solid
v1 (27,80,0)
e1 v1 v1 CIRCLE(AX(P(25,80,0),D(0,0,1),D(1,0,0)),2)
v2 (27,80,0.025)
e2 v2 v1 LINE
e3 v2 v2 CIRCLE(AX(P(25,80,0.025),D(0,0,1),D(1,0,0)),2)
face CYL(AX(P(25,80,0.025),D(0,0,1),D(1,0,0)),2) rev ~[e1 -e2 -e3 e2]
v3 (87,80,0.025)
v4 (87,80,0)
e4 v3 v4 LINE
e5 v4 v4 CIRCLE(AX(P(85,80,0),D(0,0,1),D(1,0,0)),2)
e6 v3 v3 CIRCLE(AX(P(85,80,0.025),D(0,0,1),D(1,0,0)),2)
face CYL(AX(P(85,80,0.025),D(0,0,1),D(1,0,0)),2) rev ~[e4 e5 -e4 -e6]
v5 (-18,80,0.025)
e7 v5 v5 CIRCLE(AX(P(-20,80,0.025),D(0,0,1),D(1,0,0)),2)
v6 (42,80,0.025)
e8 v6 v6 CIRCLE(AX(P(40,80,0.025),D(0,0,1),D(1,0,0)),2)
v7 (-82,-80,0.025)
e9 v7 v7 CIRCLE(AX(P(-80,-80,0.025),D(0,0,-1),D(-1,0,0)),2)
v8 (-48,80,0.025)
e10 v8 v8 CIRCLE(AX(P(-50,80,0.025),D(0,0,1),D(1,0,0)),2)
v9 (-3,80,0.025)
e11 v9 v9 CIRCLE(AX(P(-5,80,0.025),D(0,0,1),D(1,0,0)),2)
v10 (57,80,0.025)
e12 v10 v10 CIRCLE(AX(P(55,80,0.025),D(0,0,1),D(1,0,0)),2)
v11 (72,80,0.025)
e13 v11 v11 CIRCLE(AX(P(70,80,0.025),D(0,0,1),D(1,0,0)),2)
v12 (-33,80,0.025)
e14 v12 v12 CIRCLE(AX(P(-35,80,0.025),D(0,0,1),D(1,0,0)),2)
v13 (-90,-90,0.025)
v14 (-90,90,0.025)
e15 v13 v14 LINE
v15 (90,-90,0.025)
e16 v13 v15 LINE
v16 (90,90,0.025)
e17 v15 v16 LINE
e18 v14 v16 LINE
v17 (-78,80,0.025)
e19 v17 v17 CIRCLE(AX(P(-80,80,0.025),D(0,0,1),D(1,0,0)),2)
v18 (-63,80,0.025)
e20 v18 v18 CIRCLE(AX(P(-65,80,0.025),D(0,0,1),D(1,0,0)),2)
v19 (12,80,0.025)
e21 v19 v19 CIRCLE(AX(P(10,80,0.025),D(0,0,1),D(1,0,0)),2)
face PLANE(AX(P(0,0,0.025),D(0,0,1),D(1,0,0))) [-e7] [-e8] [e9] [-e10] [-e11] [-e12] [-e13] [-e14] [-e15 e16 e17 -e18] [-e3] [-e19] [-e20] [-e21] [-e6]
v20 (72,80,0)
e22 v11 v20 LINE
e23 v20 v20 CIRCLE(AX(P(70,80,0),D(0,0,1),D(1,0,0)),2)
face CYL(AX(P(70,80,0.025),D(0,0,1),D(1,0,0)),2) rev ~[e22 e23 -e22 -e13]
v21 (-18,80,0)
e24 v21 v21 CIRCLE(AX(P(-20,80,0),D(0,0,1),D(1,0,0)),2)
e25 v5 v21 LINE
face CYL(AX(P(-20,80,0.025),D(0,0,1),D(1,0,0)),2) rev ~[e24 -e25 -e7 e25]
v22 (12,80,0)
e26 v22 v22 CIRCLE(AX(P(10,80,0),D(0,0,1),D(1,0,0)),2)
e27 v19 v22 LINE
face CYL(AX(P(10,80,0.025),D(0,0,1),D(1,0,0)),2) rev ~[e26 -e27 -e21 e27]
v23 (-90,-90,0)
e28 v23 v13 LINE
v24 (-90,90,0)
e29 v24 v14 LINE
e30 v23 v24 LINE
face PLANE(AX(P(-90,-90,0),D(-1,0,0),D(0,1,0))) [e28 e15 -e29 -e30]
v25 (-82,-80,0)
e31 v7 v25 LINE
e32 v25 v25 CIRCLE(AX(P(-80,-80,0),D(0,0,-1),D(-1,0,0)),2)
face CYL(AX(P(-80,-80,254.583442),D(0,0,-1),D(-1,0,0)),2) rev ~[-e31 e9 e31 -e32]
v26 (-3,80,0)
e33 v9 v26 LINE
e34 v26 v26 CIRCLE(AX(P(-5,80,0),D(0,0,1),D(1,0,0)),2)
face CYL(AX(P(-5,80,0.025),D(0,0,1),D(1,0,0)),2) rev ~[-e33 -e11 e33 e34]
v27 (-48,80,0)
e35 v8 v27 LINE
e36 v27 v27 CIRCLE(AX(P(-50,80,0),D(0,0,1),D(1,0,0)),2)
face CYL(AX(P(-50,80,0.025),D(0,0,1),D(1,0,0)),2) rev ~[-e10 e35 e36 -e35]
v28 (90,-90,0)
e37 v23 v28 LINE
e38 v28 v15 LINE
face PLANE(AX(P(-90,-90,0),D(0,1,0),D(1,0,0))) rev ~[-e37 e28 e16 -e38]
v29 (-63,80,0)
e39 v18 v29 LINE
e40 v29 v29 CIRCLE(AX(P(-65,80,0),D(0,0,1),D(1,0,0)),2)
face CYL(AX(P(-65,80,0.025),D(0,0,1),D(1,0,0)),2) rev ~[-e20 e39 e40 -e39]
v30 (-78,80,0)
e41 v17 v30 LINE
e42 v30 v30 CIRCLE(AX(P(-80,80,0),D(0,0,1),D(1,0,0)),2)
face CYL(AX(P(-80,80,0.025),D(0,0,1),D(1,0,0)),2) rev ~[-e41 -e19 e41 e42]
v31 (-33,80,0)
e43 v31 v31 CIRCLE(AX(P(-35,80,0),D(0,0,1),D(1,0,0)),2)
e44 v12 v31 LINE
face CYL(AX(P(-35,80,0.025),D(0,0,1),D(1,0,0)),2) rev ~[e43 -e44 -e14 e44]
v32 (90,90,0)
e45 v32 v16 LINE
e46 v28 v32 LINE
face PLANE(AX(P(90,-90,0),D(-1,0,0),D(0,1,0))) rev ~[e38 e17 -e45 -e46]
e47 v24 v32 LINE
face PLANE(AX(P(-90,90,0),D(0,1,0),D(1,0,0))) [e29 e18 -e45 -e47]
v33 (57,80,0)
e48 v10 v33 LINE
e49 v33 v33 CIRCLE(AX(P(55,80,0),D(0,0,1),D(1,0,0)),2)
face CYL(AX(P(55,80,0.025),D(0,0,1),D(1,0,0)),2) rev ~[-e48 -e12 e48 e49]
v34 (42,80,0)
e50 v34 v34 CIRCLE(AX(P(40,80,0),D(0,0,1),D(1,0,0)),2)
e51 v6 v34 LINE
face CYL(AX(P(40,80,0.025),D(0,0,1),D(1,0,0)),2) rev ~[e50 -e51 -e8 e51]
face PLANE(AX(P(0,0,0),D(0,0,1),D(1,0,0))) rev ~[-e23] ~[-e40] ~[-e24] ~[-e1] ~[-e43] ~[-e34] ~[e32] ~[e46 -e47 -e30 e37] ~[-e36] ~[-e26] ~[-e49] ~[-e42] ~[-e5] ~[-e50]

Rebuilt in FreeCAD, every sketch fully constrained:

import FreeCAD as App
import Part
import Sketcher
from FreeCAD import Vector


def add_polygon(sketch, points):
    """Adds a closed chain of lines whose ends are joined by coincident constraints."""
    first, n = sketch.GeometryCount, len(points)
    for a, b in zip(points, points[1:] + points[:1]):
        sketch.addGeometry(Part.LineSegment(App.Vector(*a, 0), App.Vector(*b, 0)), False)
    for i in range(n):
        sketch.addConstraint(Sketcher.Constraint("Coincident", first + i, 2, first + (i + 1) % n, 1))

doc = App.newDocument("Part")
body = doc.addObject("PartDesign::Body", "Body")

# Sketch on XY plane
sketch1 = body.newObject("Sketcher::SketchObject", "Sketch")
sketch1.AttachmentSupport = (doc.getObject("XY_Plane"), [""])
sketch1.MapMode = "FlatFace"
add_polygon(sketch1, [(-90, 90), (-90, -90), (90, -90), (90, 90)])  # lines 0-3
sketch1.addConstraint(Sketcher.Constraint("Vertical", 0))
sketch1.addConstraint(Sketcher.Constraint("Horizontal", 1))
sketch1.addConstraint(Sketcher.Constraint("Vertical", 2))
sketch1.addConstraint(Sketcher.Constraint("Horizontal", 3))
sketch1.addConstraint(Sketcher.Constraint("Symmetric", 0, 2, 2, 2, -1, 1))
sketch1.addConstraint(Sketcher.Constraint("Equal", 3, 0))
sketch1.addConstraint(Sketcher.Constraint("DistanceX", 1, 1, 1, 2, 180.0))
pad1 = body.newObject("PartDesign::Pad", "Pad")
pad1.Profile = sketch1
pad1.Length = 0.025

# Sketch on XY plane
sketch2 = body.newObject("Sketcher::SketchObject", "Sketch001")
sketch2.AttachmentSupport = (doc.getObject("XY_Plane"), [""])
sketch2.MapMode = "FlatFace"
sketch2.AttachmentOffset = App.Placement(Vector(0, 0, 0.025), App.Rotation())
sketch2.addGeometry(Part.Circle(Vector(-80, -80, 0), Vector(0, 0, 1), 2), False)
sketch2.addConstraint(Sketcher.Constraint("Diameter", 0, 4.0))
sketch2.addConstraint(Sketcher.Constraint("DistanceX", 0, 3, -1, 1, 80.0))
sketch2.addConstraint(Sketcher.Constraint("DistanceY", 0, 3, -1, 1, 80.0))
doc.recompute()
hole = body.newObject("PartDesign::Hole", "Hole")
hole.Profile = sketch2
hole.ThreadType = "None"
hole.Diameter = 4
hole.DepthType = "ThroughAll"

# Sketch on XY plane
sketch3 = body.newObject("Sketcher::SketchObject", "Sketch002")
sketch3.AttachmentSupport = (doc.getObject("XY_Plane"), [""])
sketch3.MapMode = "FlatFace"
sketch3.AttachmentOffset = App.Placement(Vector(0, 0, 0.025), App.Rotation())
sketch3.addGeometry(Part.Circle(Vector(-80, 80, 0), Vector(0, 0, 1), 2), False)
sketch3.addGeometry(Part.Circle(Vector(-65, 80, 0), Vector(0, 0, 1), 2), False)
sketch3.addGeometry(Part.Circle(Vector(-50, 80, 0), Vector(0, 0, 1), 2), False)
sketch3.addGeometry(Part.Circle(Vector(-35, 80, 0), Vector(0, 0, 1), 2), False)
sketch3.addGeometry(Part.Circle(Vector(-20, 80, 0), Vector(0, 0, 1), 2), False)
sketch3.addGeometry(Part.Circle(Vector(-5, 80, 0), Vector(0, 0, 1), 2), False)
sketch3.addGeometry(Part.Circle(Vector(10, 80, 0), Vector(0, 0, 1), 2), False)
sketch3.addGeometry(Part.Circle(Vector(25, 80, 0), Vector(0, 0, 1), 2), False)
sketch3.addGeometry(Part.Circle(Vector(40, 80, 0), Vector(0, 0, 1), 2), False)
sketch3.addGeometry(Part.Circle(Vector(55, 80, 0), Vector(0, 0, 1), 2), False)
sketch3.addGeometry(Part.Circle(Vector(70, 80, 0), Vector(0, 0, 1), 2), False)
sketch3.addGeometry(Part.Circle(Vector(85, 80, 0), Vector(0, 0, 1), 2), False)
sketch3.addConstraint(Sketcher.Constraint("Equal", 0, 1))
sketch3.addConstraint(Sketcher.Constraint("Equal", 1, 2))
sketch3.addConstraint(Sketcher.Constraint("Equal", 2, 3))
sketch3.addConstraint(Sketcher.Constraint("Equal", 3, 4))
sketch3.addConstraint(Sketcher.Constraint("Equal", 4, 5))
sketch3.addConstraint(Sketcher.Constraint("Equal", 5, 6))
sketch3.addConstraint(Sketcher.Constraint("Equal", 6, 7))
sketch3.addConstraint(Sketcher.Constraint("Equal", 7, 8))
sketch3.addConstraint(Sketcher.Constraint("Equal", 8, 9))
sketch3.addConstraint(Sketcher.Constraint("Equal", 9, 10))
sketch3.addConstraint(Sketcher.Constraint("Equal", 10, 11))
sketch3.addConstraint(Sketcher.Constraint("Horizontal", 0, 3, 1, 3))
sketch3.addConstraint(Sketcher.Constraint("Horizontal", 1, 3, 2, 3))
sketch3.addConstraint(Sketcher.Constraint("Horizontal", 2, 3, 3, 3))
sketch3.addConstraint(Sketcher.Constraint("Horizontal", 3, 3, 4, 3))
sketch3.addConstraint(Sketcher.Constraint("Horizontal", 4, 3, 5, 3))
sketch3.addConstraint(Sketcher.Constraint("Horizontal", 5, 3, 6, 3))
sketch3.addConstraint(Sketcher.Constraint("Horizontal", 6, 3, 7, 3))
sketch3.addConstraint(Sketcher.Constraint("Horizontal", 7, 3, 8, 3))
sketch3.addConstraint(Sketcher.Constraint("Horizontal", 8, 3, 9, 3))
sketch3.addConstraint(Sketcher.Constraint("Horizontal", 9, 3, 10, 3))
sketch3.addConstraint(Sketcher.Constraint("Horizontal", 10, 3, 11, 3))
sketch3.addConstraint(Sketcher.Constraint("Diameter", 0, 4.0))
sketch3.addConstraint(Sketcher.Constraint("DistanceX", 0, 3, -1, 1, 80.0))
sketch3.addConstraint(Sketcher.Constraint("DistanceY", -1, 1, 0, 3, 80.0))
sketch3.addConstraint(Sketcher.Constraint("DistanceX", 1, 3, -1, 1, 65.0))
sketch3.addConstraint(Sketcher.Constraint("DistanceX", 2, 3, -1, 1, 50.0))
sketch3.addConstraint(Sketcher.Constraint("DistanceX", 3, 3, -1, 1, 35.0))
sketch3.addConstraint(Sketcher.Constraint("DistanceX", 4, 3, -1, 1, 20.0))
sketch3.addConstraint(Sketcher.Constraint("DistanceX", 5, 3, -1, 1, 5.0))
sketch3.addConstraint(Sketcher.Constraint("DistanceX", -1, 1, 6, 3, 10.0))
sketch3.addConstraint(Sketcher.Constraint("DistanceX", -1, 1, 7, 3, 25.0))
sketch3.addConstraint(Sketcher.Constraint("DistanceX", -1, 1, 8, 3, 40.0))
sketch3.addConstraint(Sketcher.Constraint("DistanceX", -1, 1, 9, 3, 55.0))
sketch3.addConstraint(Sketcher.Constraint("DistanceX", -1, 1, 10, 3, 70.0))
sketch3.addConstraint(Sketcher.Constraint("DistanceX", -1, 1, 11, 3, 85.0))
pocket1 = body.newObject("PartDesign::Pocket", "Pocket")
pocket1.Profile = sketch3
pocket1.Type = "ThroughAll"

doc.recompute()
